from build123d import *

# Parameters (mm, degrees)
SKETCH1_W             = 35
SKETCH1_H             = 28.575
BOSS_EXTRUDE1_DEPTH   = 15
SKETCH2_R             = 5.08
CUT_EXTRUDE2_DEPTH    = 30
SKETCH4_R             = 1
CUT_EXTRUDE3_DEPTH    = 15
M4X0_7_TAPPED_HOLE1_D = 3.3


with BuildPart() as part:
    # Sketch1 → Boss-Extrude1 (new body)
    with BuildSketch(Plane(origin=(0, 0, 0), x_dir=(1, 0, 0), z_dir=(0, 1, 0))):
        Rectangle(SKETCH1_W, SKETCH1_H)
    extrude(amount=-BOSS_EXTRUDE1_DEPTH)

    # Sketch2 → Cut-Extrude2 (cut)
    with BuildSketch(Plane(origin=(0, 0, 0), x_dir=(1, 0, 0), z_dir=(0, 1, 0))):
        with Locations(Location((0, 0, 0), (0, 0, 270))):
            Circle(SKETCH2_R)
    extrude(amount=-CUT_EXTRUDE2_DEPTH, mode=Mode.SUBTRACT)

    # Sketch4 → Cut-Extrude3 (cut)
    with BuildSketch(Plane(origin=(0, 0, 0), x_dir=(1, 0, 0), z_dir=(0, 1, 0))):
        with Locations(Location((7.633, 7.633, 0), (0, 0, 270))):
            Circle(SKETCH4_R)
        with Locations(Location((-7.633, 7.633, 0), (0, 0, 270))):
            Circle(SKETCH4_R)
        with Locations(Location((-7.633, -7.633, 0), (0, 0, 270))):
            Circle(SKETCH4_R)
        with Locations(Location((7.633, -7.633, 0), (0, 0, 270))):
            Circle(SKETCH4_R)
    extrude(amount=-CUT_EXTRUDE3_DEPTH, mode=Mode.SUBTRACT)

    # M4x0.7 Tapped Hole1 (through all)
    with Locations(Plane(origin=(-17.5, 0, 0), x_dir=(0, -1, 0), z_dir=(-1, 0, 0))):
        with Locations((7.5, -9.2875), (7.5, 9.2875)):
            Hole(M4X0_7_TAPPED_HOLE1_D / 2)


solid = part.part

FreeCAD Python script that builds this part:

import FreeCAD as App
import Part
import Sketcher
Q = App.Units.Quantity


def add_polygon(sketch, points):
    """Adds a closed chain of lines whose ends are joined by coincident constraints."""
    first, n = sketch.GeometryCount, len(points)
    for a, b in zip(points, points[1:] + points[:1]):
        sketch.addGeometry(Part.LineSegment(App.Vector(*a, 0), App.Vector(*b, 0)), False)
    for i in range(n):
        sketch.addConstraint(Sketcher.Constraint("Coincident", first + i, 2, first + (i + 1) % n, 1))

doc = App.newDocument("Part")
body = doc.addObject("PartDesign::Body", "Body")

# Sketch on XZ plane
sketch1 = doc.addObject("Sketcher::SketchObject", "Sketch")
body.addObject(sketch1)
sketch1.AttachmentSupport = (doc.XZ_Plane, [""])
sketch1.MapMode = "FlatFace"
add_polygon(sketch1, [(-18, -14), (-18, 14), (18, 14), (18, -14)])  # lines 0-3
sketch1.addConstraint(Sketcher.Constraint("Vertical", 0))
sketch1.addConstraint(Sketcher.Constraint("Horizontal", 1))
sketch1.addConstraint(Sketcher.Constraint("Vertical", 2))
sketch1.addConstraint(Sketcher.Constraint("Horizontal", 3))
sketch1.addConstraint(Sketcher.Constraint("Symmetric", 0, 2, 2, 2, -1, 1))
sketch1.addConstraint(Sketcher.Constraint("DistanceX", 1, 1, 1, 2, Q("35 mm")))
sketch1.addConstraint(Sketcher.Constraint("DistanceY", 0, 1, 0, 2, Q("28.575 mm")))
pad1 = doc.addObject("PartDesign::Pad", "Pad")
body.addObject(pad1)
pad1.Profile = sketch1
pad1.Length = 15

# Sketch on XZ plane
sketch2 = doc.addObject("Sketcher::SketchObject", "Sketch001")
body.addObject(sketch2)
sketch2.AttachmentSupport = (doc.XZ_Plane, [""])
sketch2.MapMode = "FlatFace"
sketch2.addGeometry(Part.Circle(App.Vector(0, 0, 0), App.Vector(0, 0, 1), 5), False)
sketch2.addConstraint(Sketcher.Constraint("Coincident", 0, 3, -1, 1))
sketch2.addConstraint(Sketcher.Constraint("Diameter", 0, Q("10.16 mm")))
pocket1 = doc.addObject("PartDesign::Pocket", "Pocket")
body.addObject(pocket1)
pocket1.Profile = sketch2
pocket1.Length = 30
pocket1.Reversed = True

# Sketch on XZ plane
sketch3 = doc.addObject("Sketcher::SketchObject", "Sketch002")
body.addObject(sketch3)
sketch3.AttachmentSupport = (doc.XZ_Plane, [""])
sketch3.MapMode = "FlatFace"
sketch3.addGeometry(Part.Circle(App.Vector(7.6, -7.6, 0), App.Vector(0, 0, 1), 1), False)
sketch3.addGeometry(Part.Circle(App.Vector(-7.6, -7.6, 0), App.Vector(0, 0, 1), 1), False)
sketch3.addGeometry(Part.Circle(App.Vector(-7.6, 7.6, 0), App.Vector(0, 0, 1), 1), False)
sketch3.addGeometry(Part.Circle(App.Vector(7.6, 7.6, 0), App.Vector(0, 0, 1), 1), False)
sketch3.addConstraint(Sketcher.Constraint("Equal", 0, 1))
sketch3.addConstraint(Sketcher.Constraint("Equal", 1, 2))
sketch3.addConstraint(Sketcher.Constraint("Equal", 2, 3))
sketch3.addConstraint(Sketcher.Constraint("Symmetric", 0, 3, 2, 3, -1, 1))
sketch3.addConstraint(Sketcher.Constraint("Symmetric", 1, 3, 3, 3, -1, 1))
sketch3.addConstraint(Sketcher.Constraint("Symmetric", 0, 3, 1, 3, -2))
sketch3.addConstraint(Sketcher.Constraint("Diameter", 0, Q("2 mm")))
sketch3.addConstraint(Sketcher.Constraint("DistanceX", -1, 1, 0, 3, Q("7.633 mm")))
sketch3.addConstraint(Sketcher.Constraint("DistanceY", 0, 3, -1, 1, Q("7.633 mm")))
pocket2 = doc.addObject("PartDesign::Pocket", "Pocket001")
body.addObject(pocket2)
pocket2.Profile = sketch3
pocket2.Length = 15
pocket2.Reversed = True

# Sketch on YZ plane
sketch4 = doc.addObject("Sketcher::SketchObject", "Sketch003")
body.addObject(sketch4)
sketch4.AttachmentSupport = (doc.YZ_Plane, [""])
sketch4.MapMode = "FlatFace"
sketch4.AttachmentOffset = App.Placement(App.Vector(0, 0, -17.5), App.Rotation())
sketch4.addGeometry(Part.Circle(App.Vector(-7.5, -9.3, 0), App.Vector(0, 0, 1), 1.6), False)
sketch4.addGeometry(Part.Circle(App.Vector(-7.5, 9.3, 0), App.Vector(0, 0, 1), 1.6), False)
sketch4.addConstraint(Sketcher.Constraint("Equal", 0, 1))
sketch4.addConstraint(Sketcher.Constraint("Symmetric", 0, 3, 1, 3, -1))
sketch4.addConstraint(Sketcher.Constraint("Diameter", 0, Q("3.3 mm")))
sketch4.addConstraint(Sketcher.Constraint("DistanceX", 0, 3, -1, 1, Q("7.5 mm")))
sketch4.addConstraint(Sketcher.Constraint("DistanceY", 0, 3, 1, 3, Q("18.575 mm")))
doc.recompute()
hole = doc.addObject("PartDesign::Hole", "Hole")
body.addObject(hole)
hole.Profile = sketch4
hole.ThreadType = "None"
hole.Diameter = 3.3
hole.DepthType = "ThroughAll"
hole.Reversed = True

doc.recompute()
